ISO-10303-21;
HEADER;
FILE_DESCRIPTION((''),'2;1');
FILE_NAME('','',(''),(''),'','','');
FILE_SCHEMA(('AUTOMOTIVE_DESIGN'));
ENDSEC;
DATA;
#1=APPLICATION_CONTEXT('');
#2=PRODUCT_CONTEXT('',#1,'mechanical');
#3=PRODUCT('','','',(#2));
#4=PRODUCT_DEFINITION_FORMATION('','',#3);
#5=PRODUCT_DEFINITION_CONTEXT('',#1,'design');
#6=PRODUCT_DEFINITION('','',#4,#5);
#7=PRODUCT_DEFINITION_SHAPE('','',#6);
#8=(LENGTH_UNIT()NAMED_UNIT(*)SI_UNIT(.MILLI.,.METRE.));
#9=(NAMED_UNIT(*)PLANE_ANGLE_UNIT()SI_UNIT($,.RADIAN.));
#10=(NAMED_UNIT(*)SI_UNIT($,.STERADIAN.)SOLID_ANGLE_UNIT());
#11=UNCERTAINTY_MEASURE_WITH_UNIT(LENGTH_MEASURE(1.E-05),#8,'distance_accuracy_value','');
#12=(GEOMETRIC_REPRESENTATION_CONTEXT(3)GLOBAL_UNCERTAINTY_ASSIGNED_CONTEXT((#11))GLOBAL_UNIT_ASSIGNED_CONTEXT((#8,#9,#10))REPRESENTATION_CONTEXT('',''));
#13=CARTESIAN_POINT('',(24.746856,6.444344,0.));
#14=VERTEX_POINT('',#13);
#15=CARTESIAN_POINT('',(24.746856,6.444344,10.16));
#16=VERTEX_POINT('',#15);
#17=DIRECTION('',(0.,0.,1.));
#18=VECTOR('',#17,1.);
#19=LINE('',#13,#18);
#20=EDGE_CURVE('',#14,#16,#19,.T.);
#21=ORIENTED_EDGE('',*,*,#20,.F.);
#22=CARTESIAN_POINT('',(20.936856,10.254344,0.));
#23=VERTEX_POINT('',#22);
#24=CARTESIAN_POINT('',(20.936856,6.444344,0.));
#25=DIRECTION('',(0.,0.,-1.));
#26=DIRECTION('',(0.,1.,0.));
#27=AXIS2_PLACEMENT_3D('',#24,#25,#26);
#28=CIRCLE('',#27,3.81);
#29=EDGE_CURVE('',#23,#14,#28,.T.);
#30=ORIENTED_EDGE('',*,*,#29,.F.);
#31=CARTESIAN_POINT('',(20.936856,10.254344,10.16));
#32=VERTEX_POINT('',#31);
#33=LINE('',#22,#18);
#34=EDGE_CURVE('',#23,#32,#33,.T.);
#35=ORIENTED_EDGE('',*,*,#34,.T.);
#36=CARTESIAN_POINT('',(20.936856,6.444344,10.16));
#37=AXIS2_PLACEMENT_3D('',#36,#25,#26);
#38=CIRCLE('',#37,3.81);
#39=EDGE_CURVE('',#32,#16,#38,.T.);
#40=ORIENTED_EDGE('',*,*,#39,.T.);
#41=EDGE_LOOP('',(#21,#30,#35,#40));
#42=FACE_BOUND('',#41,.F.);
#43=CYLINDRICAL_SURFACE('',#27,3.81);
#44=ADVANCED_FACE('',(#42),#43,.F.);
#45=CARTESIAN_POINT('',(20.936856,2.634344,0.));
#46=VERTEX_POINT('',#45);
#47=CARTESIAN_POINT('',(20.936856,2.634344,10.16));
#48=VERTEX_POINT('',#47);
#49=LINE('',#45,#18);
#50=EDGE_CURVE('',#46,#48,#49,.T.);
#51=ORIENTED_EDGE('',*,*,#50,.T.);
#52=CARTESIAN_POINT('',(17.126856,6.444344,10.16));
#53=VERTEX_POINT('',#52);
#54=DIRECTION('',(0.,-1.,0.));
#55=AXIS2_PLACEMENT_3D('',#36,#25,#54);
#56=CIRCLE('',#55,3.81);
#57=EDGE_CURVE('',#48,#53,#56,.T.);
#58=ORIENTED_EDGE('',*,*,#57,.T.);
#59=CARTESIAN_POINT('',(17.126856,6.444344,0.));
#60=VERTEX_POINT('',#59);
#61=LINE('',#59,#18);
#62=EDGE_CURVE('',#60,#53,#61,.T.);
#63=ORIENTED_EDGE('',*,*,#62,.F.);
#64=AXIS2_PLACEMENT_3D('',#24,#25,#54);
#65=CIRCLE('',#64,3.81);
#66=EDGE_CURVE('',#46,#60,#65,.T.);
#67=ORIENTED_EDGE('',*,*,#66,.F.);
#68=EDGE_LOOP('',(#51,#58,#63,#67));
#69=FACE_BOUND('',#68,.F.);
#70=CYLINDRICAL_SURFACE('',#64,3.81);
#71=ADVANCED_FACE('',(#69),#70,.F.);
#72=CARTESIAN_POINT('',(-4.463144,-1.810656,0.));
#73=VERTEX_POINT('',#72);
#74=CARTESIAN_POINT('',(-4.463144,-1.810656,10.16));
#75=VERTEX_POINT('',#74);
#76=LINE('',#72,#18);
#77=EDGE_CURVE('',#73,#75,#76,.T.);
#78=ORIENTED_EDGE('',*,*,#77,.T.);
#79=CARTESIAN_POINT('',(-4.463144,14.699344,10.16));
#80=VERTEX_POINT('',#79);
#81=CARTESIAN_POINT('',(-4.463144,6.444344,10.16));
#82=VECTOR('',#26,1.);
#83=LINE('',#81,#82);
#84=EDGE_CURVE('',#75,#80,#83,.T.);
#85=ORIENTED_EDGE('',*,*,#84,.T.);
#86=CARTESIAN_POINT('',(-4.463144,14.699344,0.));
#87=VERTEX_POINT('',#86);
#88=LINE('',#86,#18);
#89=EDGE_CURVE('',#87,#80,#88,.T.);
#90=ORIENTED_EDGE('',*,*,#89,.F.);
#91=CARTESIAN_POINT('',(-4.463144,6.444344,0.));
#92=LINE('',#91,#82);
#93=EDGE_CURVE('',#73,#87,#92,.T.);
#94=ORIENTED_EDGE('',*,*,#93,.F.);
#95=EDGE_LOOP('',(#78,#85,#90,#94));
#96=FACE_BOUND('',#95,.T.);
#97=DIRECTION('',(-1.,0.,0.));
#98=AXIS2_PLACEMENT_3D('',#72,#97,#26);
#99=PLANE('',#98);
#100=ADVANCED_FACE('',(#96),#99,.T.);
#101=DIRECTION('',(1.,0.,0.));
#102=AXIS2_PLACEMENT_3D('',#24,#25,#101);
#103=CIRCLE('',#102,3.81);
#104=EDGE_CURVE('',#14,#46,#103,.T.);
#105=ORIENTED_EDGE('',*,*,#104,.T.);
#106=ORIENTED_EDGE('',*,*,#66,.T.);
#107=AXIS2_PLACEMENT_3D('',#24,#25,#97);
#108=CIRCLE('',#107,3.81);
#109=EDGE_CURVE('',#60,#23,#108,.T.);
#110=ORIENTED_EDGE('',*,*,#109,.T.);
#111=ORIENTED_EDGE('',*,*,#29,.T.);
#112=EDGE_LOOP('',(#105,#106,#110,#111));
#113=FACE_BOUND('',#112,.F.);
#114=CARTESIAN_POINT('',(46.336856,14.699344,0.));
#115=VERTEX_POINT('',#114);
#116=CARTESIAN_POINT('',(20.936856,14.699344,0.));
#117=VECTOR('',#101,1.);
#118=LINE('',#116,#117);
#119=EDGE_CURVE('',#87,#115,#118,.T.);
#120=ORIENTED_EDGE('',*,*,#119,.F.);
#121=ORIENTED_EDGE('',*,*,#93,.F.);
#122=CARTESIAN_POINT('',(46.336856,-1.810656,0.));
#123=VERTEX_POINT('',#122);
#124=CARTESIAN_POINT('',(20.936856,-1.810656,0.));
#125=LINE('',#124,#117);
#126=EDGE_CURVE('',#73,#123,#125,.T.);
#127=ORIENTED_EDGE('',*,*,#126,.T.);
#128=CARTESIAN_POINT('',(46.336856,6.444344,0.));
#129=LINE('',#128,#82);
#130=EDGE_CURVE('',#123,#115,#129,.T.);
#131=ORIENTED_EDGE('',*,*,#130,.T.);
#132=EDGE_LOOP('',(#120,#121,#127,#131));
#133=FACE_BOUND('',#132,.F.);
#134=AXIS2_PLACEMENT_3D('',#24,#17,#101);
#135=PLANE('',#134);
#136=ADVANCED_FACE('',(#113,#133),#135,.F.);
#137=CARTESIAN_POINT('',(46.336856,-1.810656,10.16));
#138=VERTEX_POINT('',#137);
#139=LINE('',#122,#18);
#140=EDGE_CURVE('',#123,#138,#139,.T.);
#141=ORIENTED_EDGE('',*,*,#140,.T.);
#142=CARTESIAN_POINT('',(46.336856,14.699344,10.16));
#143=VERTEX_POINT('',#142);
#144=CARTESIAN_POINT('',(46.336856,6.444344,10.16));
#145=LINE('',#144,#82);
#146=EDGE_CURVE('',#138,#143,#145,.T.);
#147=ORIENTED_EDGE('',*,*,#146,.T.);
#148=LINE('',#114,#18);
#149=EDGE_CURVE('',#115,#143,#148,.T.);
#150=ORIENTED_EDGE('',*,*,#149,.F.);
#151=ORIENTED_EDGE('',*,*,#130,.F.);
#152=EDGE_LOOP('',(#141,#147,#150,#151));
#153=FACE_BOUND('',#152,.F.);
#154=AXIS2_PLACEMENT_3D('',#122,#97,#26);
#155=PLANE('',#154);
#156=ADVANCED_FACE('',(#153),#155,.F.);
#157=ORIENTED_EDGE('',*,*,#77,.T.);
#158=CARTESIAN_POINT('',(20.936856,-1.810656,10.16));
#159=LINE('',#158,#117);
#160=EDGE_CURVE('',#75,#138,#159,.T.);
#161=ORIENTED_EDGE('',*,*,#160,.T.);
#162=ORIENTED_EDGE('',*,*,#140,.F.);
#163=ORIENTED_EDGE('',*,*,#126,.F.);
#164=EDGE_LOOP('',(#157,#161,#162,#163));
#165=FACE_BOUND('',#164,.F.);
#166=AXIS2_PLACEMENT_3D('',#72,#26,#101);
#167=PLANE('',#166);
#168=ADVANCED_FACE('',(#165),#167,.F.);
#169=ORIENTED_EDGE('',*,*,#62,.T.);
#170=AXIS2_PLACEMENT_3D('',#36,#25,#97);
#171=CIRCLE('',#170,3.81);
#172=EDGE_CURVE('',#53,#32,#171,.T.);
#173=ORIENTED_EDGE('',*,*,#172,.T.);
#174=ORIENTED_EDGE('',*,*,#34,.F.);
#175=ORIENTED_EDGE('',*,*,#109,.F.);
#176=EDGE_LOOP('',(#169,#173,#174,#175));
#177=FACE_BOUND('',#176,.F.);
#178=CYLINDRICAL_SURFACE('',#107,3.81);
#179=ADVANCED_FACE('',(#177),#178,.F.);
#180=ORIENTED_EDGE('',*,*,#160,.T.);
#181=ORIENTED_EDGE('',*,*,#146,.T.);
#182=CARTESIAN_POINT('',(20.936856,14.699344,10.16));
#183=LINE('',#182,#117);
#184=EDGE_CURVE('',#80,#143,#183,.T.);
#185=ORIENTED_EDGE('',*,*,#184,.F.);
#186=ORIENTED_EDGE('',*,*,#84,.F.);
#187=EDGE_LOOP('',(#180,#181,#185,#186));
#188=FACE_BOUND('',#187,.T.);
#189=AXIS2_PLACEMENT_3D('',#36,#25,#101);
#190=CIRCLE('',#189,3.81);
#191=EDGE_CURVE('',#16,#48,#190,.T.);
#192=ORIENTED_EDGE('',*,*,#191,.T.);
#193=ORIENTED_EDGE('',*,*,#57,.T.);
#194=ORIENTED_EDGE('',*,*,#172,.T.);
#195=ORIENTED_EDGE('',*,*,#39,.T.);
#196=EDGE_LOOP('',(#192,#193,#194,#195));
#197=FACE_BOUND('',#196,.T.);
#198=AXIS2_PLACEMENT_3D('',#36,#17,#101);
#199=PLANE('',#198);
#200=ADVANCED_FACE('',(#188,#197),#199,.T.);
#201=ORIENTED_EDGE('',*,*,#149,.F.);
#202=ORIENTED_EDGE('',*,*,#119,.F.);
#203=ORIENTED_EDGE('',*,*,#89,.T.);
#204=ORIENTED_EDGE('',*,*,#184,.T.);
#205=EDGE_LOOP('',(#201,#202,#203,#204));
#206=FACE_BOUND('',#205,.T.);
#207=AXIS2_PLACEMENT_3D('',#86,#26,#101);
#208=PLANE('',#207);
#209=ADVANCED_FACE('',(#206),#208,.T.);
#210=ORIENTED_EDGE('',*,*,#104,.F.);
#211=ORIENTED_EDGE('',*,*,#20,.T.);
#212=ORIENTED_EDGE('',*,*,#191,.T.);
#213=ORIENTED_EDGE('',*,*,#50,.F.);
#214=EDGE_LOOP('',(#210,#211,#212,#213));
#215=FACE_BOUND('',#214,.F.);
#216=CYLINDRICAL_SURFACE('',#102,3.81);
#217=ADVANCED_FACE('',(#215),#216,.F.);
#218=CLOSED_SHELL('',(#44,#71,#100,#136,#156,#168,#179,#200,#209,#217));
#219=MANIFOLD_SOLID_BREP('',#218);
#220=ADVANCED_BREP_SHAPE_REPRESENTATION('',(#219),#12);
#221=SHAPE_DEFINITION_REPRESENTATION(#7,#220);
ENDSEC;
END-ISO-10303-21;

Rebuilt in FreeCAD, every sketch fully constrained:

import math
import FreeCAD as App
import Part
import Sketcher

V = App.Vector
Q = App.Units.Quantity


def add_polygon(sketch, points):
    """Adds a closed chain of lines whose ends are joined by coincident constraints."""
    first, n = sketch.GeometryCount, len(points)
    for a, b in zip(points, points[1:] + points[:1]):
        sketch.addGeometry(Part.LineSegment(App.Vector(*a, 0), App.Vector(*b, 0)), False)
    for i in range(n):
        sketch.addConstraint(Sketcher.Constraint("Coincident", first + i, 2, first + (i + 1) % n, 1))

doc = App.newDocument("Part")
body = doc.addObject("PartDesign::Body", "Body")

# Sketch on XY plane
sketch1 = body.newObject("Sketcher::SketchObject", "Sketch")
sketch1.AttachmentSupport = (doc.getObject("XY_Plane"), [""])
sketch1.MapMode = "FlatFace"
add_polygon(sketch1, [(-4, 15), (-4, -2), (46, -2), (46, 15)])  # lines 0-3
sketch1.addConstraint([
    Sketcher.Constraint("Vertical", 0),
    Sketcher.Constraint("Horizontal", 1),
    Sketcher.Constraint("Vertical", 2),
    Sketcher.Constraint("Horizontal", 3),
    Sketcher.Constraint("DistanceX", 1, 1, 1, 2, Q("2 in")),
    Sketcher.Constraint("DistanceY", 0, 2, 0, 1, Q("0.65 in")),
    Sketcher.Constraint("DistanceX", 0, 2, -1, 1, 4.463144),
    Sketcher.Constraint("DistanceY", 0, 2, -1, 1, 1.810656),
])
pad1 = body.newObject("PartDesign::Pad", "Pad")
pad1.Profile = sketch1
pad1.Length = Q("0.4 in")

# Sketch on XY plane
sketch2 = body.newObject("Sketcher::SketchObject", "Sketch001")
sketch2.AttachmentSupport = (doc.getObject("XY_Plane"), [""])
sketch2.MapMode = "FlatFace"
sketch2.addGeometry([
    Part.ArcOfCircle(Part.Circle(V(20.9, 6.4, 0), V(0, 0, 1), 3.8), math.radians(-90), math.radians(0)),
    Part.ArcOfCircle(Part.Circle(V(20.9, 6.4, 0), V(0, 0, 1), 3.8), math.radians(180), math.radians(270)),
    Part.ArcOfCircle(Part.Circle(V(20.9, 6.4, 0), V(0, 0, 1), 3.8), math.radians(90), math.radians(180)),
    Part.ArcOfCircle(Part.Circle(V(20.9, 6.4, 0), V(0, 0, 1), 3.8), math.radians(0), math.radians(90)),
], False)
sketch2.addConstraint([
    Sketcher.Constraint("Tangent", 0, 1, 1, 2),
    Sketcher.Constraint("Tangent", 1, 1, 2, 2),
    Sketcher.Constraint("Tangent", 2, 1, 3, 2),
    Sketcher.Constraint("Tangent", 3, 1, 0, 2),
    Sketcher.Constraint("Equal", 0, 1),
    Sketcher.Constraint("Horizontal", 3, 3, 1, 1),
    Sketcher.Constraint("Horizontal", 1, 1, 3, 1),
    Sketcher.Constraint("Vertical", 3, 3, 0, 1),
    Sketcher.Constraint("Vertical", 0, 1, 2, 1),
    Sketcher.Constraint("Radius", 0, Q("0.15 in")),
    Sketcher.Constraint("DistanceX", -1, 1, 0, 3, 20.936856),
    Sketcher.Constraint("DistanceY", -1, 1, 0, 3, 6.444344),
])
pocket1 = body.newObject("PartDesign::Pocket", "Pocket")
pocket1.Profile = sketch2
pocket1.Length = Q("1 in")
pocket1.Reversed = True

doc.recompute()
